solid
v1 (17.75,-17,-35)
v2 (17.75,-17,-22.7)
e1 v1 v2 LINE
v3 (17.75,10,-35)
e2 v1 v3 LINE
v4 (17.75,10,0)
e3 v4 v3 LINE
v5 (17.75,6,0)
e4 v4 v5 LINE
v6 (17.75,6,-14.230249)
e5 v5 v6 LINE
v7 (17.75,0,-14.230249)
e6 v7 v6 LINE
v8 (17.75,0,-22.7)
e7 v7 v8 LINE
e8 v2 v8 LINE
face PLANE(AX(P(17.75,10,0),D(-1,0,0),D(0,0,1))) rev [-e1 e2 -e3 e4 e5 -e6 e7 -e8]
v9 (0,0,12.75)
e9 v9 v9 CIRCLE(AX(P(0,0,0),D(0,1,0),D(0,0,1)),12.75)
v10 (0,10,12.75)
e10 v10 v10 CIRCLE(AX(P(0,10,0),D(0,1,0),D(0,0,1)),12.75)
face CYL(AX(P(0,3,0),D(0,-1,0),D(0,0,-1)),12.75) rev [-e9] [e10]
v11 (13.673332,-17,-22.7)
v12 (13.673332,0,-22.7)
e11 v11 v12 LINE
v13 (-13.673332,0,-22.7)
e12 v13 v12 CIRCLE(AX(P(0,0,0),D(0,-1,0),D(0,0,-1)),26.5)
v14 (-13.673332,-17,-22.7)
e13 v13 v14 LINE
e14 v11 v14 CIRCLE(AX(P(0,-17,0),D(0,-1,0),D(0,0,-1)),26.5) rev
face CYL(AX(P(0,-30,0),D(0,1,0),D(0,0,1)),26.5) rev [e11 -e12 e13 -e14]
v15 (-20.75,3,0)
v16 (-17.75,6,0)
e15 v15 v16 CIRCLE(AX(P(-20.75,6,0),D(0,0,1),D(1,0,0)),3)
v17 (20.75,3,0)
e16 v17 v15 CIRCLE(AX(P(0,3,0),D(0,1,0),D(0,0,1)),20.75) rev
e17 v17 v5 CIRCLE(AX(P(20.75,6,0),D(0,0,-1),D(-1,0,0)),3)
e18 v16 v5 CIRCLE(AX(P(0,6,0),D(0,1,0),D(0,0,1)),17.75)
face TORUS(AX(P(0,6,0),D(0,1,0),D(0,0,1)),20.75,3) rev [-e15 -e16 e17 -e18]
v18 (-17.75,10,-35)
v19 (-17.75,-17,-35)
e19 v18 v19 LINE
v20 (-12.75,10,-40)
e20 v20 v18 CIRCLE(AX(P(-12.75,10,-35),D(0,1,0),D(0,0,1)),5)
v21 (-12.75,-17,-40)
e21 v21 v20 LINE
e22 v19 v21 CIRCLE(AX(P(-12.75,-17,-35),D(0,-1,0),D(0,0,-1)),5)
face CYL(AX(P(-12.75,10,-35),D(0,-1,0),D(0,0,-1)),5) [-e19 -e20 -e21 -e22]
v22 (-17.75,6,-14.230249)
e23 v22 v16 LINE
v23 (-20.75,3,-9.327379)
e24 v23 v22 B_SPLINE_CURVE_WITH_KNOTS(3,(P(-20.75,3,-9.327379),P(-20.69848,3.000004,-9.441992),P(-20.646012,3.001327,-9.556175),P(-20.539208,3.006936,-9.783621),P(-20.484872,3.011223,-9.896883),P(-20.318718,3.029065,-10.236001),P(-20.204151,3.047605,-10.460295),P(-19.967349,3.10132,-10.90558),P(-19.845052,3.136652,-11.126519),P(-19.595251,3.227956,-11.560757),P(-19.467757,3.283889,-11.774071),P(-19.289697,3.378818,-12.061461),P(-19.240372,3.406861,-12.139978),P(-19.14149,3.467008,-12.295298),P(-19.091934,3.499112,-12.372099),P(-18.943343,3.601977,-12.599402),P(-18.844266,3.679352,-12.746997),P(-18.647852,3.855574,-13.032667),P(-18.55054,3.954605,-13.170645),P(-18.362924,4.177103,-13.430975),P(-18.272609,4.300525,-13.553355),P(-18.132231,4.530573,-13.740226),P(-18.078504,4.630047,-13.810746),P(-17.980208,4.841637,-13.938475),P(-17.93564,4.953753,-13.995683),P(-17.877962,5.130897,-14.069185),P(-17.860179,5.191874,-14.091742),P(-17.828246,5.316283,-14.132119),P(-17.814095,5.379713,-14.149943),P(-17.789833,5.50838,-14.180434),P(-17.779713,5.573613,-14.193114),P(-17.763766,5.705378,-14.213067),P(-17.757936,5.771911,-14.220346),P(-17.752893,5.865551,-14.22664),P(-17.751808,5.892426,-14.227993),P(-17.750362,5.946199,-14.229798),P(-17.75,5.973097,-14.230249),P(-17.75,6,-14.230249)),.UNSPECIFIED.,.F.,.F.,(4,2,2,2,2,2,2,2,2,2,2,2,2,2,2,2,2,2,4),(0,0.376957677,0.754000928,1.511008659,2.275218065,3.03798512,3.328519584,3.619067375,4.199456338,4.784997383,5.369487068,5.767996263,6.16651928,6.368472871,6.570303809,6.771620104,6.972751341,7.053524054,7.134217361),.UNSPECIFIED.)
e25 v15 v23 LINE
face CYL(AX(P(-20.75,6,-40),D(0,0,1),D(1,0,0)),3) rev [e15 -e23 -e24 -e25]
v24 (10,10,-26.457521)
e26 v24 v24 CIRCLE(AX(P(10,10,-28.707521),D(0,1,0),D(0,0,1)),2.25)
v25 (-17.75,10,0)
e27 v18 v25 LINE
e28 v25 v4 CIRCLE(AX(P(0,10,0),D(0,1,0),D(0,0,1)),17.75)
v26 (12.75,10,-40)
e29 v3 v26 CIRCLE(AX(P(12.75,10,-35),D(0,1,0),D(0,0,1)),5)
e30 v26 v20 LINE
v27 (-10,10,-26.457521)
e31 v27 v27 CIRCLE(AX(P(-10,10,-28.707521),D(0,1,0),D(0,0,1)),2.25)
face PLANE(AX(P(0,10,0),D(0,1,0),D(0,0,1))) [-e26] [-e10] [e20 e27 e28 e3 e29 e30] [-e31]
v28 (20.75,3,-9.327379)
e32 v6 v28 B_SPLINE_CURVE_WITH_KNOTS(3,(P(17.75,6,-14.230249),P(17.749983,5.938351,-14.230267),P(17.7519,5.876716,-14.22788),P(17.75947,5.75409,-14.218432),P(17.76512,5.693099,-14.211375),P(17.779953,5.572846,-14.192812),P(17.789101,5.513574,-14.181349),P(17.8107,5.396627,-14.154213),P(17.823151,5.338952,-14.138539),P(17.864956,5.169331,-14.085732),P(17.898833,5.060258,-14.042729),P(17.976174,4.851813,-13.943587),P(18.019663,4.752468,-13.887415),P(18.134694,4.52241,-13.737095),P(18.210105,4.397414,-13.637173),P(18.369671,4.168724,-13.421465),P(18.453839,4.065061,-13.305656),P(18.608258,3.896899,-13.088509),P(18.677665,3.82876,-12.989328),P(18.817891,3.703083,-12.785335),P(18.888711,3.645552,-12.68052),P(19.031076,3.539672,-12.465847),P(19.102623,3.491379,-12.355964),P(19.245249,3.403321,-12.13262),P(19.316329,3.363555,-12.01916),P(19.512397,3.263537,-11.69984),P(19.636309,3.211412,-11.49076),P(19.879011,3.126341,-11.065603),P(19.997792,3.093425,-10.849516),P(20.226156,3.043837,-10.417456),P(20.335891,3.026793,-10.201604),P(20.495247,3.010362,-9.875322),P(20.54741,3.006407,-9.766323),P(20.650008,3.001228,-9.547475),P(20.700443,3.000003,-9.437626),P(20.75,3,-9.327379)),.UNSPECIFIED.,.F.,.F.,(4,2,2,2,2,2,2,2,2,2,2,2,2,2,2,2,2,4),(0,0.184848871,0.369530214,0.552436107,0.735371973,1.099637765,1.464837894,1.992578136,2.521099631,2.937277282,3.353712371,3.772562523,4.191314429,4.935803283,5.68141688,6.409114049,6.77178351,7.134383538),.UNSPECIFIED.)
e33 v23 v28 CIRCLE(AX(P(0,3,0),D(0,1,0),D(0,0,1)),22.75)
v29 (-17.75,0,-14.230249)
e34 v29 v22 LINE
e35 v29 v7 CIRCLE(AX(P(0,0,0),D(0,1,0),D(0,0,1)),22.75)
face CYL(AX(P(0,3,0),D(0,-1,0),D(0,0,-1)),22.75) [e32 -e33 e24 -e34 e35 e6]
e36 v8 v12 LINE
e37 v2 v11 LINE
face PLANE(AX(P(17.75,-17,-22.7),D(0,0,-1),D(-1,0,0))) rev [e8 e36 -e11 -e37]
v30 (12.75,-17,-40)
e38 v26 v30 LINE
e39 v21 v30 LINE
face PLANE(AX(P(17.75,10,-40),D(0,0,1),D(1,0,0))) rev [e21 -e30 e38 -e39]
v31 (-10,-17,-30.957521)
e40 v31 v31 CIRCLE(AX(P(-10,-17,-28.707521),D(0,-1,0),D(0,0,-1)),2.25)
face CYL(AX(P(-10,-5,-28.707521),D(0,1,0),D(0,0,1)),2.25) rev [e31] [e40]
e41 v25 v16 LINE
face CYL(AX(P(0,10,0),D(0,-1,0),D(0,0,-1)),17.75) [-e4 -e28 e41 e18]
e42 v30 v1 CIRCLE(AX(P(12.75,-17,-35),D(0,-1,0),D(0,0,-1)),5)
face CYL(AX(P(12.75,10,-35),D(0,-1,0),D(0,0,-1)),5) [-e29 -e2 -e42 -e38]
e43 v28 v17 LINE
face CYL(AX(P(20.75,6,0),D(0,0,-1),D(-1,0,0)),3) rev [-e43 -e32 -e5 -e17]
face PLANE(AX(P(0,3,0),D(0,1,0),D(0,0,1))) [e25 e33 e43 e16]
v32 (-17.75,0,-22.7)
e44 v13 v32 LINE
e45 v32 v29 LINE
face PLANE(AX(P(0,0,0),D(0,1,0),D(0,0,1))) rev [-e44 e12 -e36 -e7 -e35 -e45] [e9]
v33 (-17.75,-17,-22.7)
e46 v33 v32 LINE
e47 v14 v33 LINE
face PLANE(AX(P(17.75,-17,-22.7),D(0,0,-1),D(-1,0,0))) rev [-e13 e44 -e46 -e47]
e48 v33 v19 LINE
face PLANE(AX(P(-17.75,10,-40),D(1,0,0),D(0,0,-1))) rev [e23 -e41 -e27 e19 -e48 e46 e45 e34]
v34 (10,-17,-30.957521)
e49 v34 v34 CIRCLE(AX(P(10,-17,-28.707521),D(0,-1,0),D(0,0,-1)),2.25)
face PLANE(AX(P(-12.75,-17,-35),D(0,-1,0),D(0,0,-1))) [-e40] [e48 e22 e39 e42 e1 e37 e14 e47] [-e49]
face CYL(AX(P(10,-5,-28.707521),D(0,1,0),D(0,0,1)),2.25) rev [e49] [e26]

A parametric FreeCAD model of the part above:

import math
import FreeCAD as App
import Part
import Sketcher

V = App.Vector
Q = App.Units.Quantity


def edges_at(feature, points):
    """Names of the edges that pass closest to the given points."""
    edges = feature.Shape.Edges
    near = lambda p: min(range(len(edges)), key=lambda i: edges[i].distToShape(Part.Vertex(*p))[0])
    return sorted({f"Edge{near(p) + 1}" for p in points})

doc = App.newDocument("Part")
body = doc.addObject("PartDesign::Body", "Body")

# Sketch on XZ plane
sketch1 = doc.addObject("Sketcher::SketchObject", "Sketch")
body.addObject(sketch1)
sketch1.AttachmentSupport = (doc.XZ_Plane, [""])
sketch1.MapMode = "FlatFace"
sketch1.addGeometry([
    Part.Circle(V(0, 0, 0), V(0, 0, 1), 23),
    Part.Circle(V(0, 0, 0), V(0, 0, 1), 13),
], False)
sketch1.addConstraint([
    Sketcher.Constraint("Coincident", 0, 3, -1, 1),
    Sketcher.Constraint("Coincident", 1, 3, -1, 1),
    Sketcher.Constraint("Diameter", 0, Q("45.5 mm")),
    Sketcher.Constraint("Diameter", 1, Q("25.5 mm")),
])
pad1 = doc.addObject("PartDesign::Pad", "Pad")
body.addObject(pad1)
pad1.Profile = sketch1
pad1.Length = 3
pad1.Reversed = True

# Sketch on XZ plane
sketch2 = doc.addObject("Sketcher::SketchObject", "Sketch001")
body.addObject(sketch2)
sketch2.AttachmentSupport = (doc.XZ_Plane, [""])
sketch2.MapMode = "FlatFace"
sketch2.AttachmentOffset = App.Placement(V(0, 0, -3), App.Rotation())
sketch2.addGeometry([
    Part.LineSegment(V(18, 0, 0), V(18, -40, 0)),  # 0
    Part.LineSegment(V(18, -40, 0), V(-18, -40, 0)),  # 1
    Part.LineSegment(V(-18, -40, 0), V(-18, 0, 0)),  # 2
    Part.ArcOfCircle(Part.Circle(V(0, 0, 0), V(0, 0, 1), 18), math.radians(106), math.radians(180)),  # 3
    Part.ArcOfCircle(Part.Circle(V(0, 0, 0), V(0, 0, 1), 18), math.radians(74), math.radians(106)),  # 4
    Part.ArcOfCircle(Part.Circle(V(0, 0, 0), V(0, 0, 1), 18), math.radians(0), math.radians(74)),  # 5
    Part.Circle(V(0, 0, 0), V(0, 0, 1), 13),  # 6
], False)
sketch2.addConstraint([
    Sketcher.Constraint("Coincident", 0, 2, 1, 1),
    Sketcher.Constraint("Coincident", 1, 2, 2, 1),
    Sketcher.Constraint("Tangent", 2, 2, 3, 2),
    Sketcher.Constraint("Tangent", 3, 1, 4, 2),
    Sketcher.Constraint("Tangent", 4, 1, 5, 2),
    Sketcher.Constraint("Tangent", 5, 1, 0, 1),
    Sketcher.Constraint("Vertical", 0),
    Sketcher.Constraint("Horizontal", 1),
    Sketcher.Constraint("Vertical", 2),
    Sketcher.Constraint("Coincident", 3, 3, -1, 1),
    Sketcher.Constraint("Coincident", 5, 3, -1, 1),
    Sketcher.Constraint("Coincident", 6, 3, -1, 1),
    Sketcher.Constraint("Horizontal", 3, 1, 4, 1),
    Sketcher.Constraint("Diameter", 6, Q("25.5 mm")),
    Sketcher.Constraint("DistanceY", 0, 2, 0, 1, Q("40 mm")),
    Sketcher.Constraint("Radius", 3, Q("17.75 mm")),
    Sketcher.Constraint("DistanceX", 3, 1, -1, 1, Q("5 mm")),
])
pad2 = doc.addObject("PartDesign::Pad", "Pad001")
body.addObject(pad2)
pad2.Profile = sketch2
pad2.Length = 7
pad2.Reversed = True

# Sketch on XZ plane
sketch3 = doc.addObject("Sketcher::SketchObject", "Sketch002")
body.addObject(sketch3)
sketch3.AttachmentSupport = (doc.XZ_Plane, [""])
sketch3.MapMode = "FlatFace"
sketch3.addGeometry([
    Part.LineSegment(V(18, -40, 0), V(18, -14, 0)),
    Part.ArcOfCircle(Part.Circle(V(0, 0, 0), V(0, 0, 1), 23), math.radians(-141), math.radians(-39)),
    Part.LineSegment(V(-18, -14, 0), V(-18, -40, 0)),
    Part.LineSegment(V(-18, -40, 0), V(18, -40, 0)),
], False)
sketch3.addConstraint([
    Sketcher.Constraint("Coincident", 0, 2, 1, 2),
    Sketcher.Constraint("Coincident", 1, 1, 2, 1),
    Sketcher.Constraint("Coincident", 2, 2, 3, 1),
    Sketcher.Constraint("Coincident", 3, 2, 0, 1),
    Sketcher.Constraint("Vertical", 0),
    Sketcher.Constraint("Vertical", 2),
    Sketcher.Constraint("Horizontal", 3),
    Sketcher.Constraint("Coincident", 1, 3, -1, 1),
    Sketcher.Constraint("Horizontal", 0, 2, 1, 1),
    Sketcher.Constraint("Radius", 1, Q("22.75 mm")),
    Sketcher.Constraint("DistanceX", 3, 1, 3, 2, Q("35.5 mm")),
    Sketcher.Constraint("DistanceY", 2, 2, -1, 1, Q("40 mm")),
])
pad3 = doc.addObject("PartDesign::Pad", "Pad002")
body.addObject(pad3)
pad3.Profile = sketch3
pad3.Length = 3
pad3.Reversed = True
doc.recompute()

fillet = doc.addObject("PartDesign::Fillet", "Fillet")
body.addObject(fillet)
fillet.Base = (pad3, edges_at(pad3, [(17.75, 5, -40), (-17.75, 5, -40)]))
fillet.Radius = 5

# Sketch on XZ plane
sketch4 = doc.addObject("Sketcher::SketchObject", "Sketch003")
body.addObject(sketch4)
sketch4.AttachmentSupport = (doc.XZ_Plane, [""])
sketch4.MapMode = "FlatFace"
sketch4.AttachmentOffset = App.Placement(V(0, 0, -10), App.Rotation())
sketch4.addGeometry([
    Part.Circle(V(10, -28.7, 0), V(0, 0, 1), 2.2),
    Part.Circle(V(-10, -28.7, 0), V(0, 0, 1), 2.2),
], False)
sketch4.addConstraint([
    Sketcher.Constraint("Equal", 0, 1),
    Sketcher.Constraint("Symmetric", 0, 3, 1, 3, -2),
    Sketcher.Constraint("Diameter", 0, Q("4.5 mm")),
    Sketcher.Constraint("DistanceX", -1, 1, 0, 3, Q("10 mm")),
    Sketcher.Constraint("DistanceY", 0, 3, -1, 1, Q("28.707521 mm")),
])
pocket1 = doc.addObject("PartDesign::Pocket", "Pocket")
body.addObject(pocket1)
pocket1.Profile = sketch4
pocket1.Length = 15
pocket1.Reversed = True
doc.recompute()

fillet2 = doc.addObject("PartDesign::Fillet", "Fillet001")
body.addObject(fillet2)
fillet2.Base = (pocket1, edges_at(pocket1, [(-17.75, 3, -7.115), (17.75, 3, -7.115), (0, 3, 17.75)]))
fillet2.Radius = 3

# Sketch on XZ plane
sketch5 = doc.addObject("Sketcher::SketchObject", "Sketch004")
body.addObject(sketch5)
sketch5.AttachmentSupport = (doc.XZ_Plane, [""])
sketch5.MapMode = "FlatFace"
sketch5.addGeometry([
    Part.LineSegment(V(-17.8, -22.7, 0), V(-17.8, -35, 0)),  # 0
    Part.ArcOfCircle(Part.Circle(V(-12.8, -35, 0), V(0, 0, 1), 5), math.radians(180), math.radians(270)),  # 1
    Part.LineSegment(V(-12.8, -40, 0), V(12.8, -40, 0)),  # 2
    Part.ArcOfCircle(Part.Circle(V(12.8, -35, 0), V(0, 0, 1), 5), math.radians(-90), math.radians(0)),  # 3
    Part.LineSegment(V(17.8, -35, 0), V(17.8, -22.7, 0)),  # 4
    Part.LineSegment(V(17.8, -22.7, 0), V(-17.8, -22.7, 0)),  # 5
    Part.Circle(V(10, -28.7, 0), V(0, 0, 1), 2.2),  # 6
    Part.Circle(V(-10, -28.7, 0), V(0, 0, 1), 2.2),  # 7
], False)
sketch5.addConstraint([
    Sketcher.Constraint("Tangent", 0, 2, 1, 1),
    Sketcher.Constraint("Tangent", 1, 2, 2, 1),
    Sketcher.Constraint("Tangent", 2, 2, 3, 1),
    Sketcher.Constraint("Tangent", 3, 2, 4, 1),
    Sketcher.Constraint("Coincident", 4, 2, 5, 1),
    Sketcher.Constraint("Coincident", 5, 2, 0, 1),
    Sketcher.Constraint("Vertical", 0),
    Sketcher.Constraint("Horizontal", 2),
    Sketcher.Constraint("Vertical", 4),
    Sketcher.Constraint("Horizontal", 5),
    Sketcher.Constraint("Equal", 1, 3),
    Sketcher.Constraint("Equal", 6, 7),
    Sketcher.Constraint("Symmetric", 6, 3, 7, 3, -2),
    Sketcher.Constraint("Radius", 1, Q("5 mm")),
    Sketcher.Constraint("Diameter", 6, Q("4.5 mm")),
    Sketcher.Constraint("DistanceX", 2, 1, 2, 2, Q("25.5 mm")),
    Sketcher.Constraint("DistanceY", 0, 2, 0, 1, Q("12.3 mm")),
    Sketcher.Constraint("DistanceY", 1, 3, -1, 1, Q("35 mm")),
    Sketcher.Constraint("DistanceX", -1, 1, 6, 3, Q("10 mm")),
    Sketcher.Constraint("DistanceX", 1, 3, -1, 1, Q("12.75 mm")),
    Sketcher.Constraint("DistanceY", 6, 3, -1, 1, Q("28.707521 mm")),
])
pad4 = doc.addObject("PartDesign::Pad", "Pad003")
body.addObject(pad4)
pad4.Profile = sketch5
pad4.Length = 17

# Sketch on XZ plane
sketch6 = doc.addObject("Sketcher::SketchObject", "Sketch005")
body.addObject(sketch6)
sketch6.AttachmentSupport = (doc.XZ_Plane, [""])
sketch6.MapMode = "FlatFace"
sketch6.addGeometry(Part.Circle(V(0, 0, 0), V(0, 0, 1), 26), False)
sketch6.addConstraint([
    Sketcher.Constraint("Coincident", 0, 3, -1, 1),
    Sketcher.Constraint("Diameter", 0, Q("53 mm")),
])
pocket2 = doc.addObject("PartDesign::Pocket", "Pocket001")
body.addObject(pocket2)
pocket2.Profile = sketch6
pocket2.Length = 30
pocket2.Reversed = True

doc.recompute()
